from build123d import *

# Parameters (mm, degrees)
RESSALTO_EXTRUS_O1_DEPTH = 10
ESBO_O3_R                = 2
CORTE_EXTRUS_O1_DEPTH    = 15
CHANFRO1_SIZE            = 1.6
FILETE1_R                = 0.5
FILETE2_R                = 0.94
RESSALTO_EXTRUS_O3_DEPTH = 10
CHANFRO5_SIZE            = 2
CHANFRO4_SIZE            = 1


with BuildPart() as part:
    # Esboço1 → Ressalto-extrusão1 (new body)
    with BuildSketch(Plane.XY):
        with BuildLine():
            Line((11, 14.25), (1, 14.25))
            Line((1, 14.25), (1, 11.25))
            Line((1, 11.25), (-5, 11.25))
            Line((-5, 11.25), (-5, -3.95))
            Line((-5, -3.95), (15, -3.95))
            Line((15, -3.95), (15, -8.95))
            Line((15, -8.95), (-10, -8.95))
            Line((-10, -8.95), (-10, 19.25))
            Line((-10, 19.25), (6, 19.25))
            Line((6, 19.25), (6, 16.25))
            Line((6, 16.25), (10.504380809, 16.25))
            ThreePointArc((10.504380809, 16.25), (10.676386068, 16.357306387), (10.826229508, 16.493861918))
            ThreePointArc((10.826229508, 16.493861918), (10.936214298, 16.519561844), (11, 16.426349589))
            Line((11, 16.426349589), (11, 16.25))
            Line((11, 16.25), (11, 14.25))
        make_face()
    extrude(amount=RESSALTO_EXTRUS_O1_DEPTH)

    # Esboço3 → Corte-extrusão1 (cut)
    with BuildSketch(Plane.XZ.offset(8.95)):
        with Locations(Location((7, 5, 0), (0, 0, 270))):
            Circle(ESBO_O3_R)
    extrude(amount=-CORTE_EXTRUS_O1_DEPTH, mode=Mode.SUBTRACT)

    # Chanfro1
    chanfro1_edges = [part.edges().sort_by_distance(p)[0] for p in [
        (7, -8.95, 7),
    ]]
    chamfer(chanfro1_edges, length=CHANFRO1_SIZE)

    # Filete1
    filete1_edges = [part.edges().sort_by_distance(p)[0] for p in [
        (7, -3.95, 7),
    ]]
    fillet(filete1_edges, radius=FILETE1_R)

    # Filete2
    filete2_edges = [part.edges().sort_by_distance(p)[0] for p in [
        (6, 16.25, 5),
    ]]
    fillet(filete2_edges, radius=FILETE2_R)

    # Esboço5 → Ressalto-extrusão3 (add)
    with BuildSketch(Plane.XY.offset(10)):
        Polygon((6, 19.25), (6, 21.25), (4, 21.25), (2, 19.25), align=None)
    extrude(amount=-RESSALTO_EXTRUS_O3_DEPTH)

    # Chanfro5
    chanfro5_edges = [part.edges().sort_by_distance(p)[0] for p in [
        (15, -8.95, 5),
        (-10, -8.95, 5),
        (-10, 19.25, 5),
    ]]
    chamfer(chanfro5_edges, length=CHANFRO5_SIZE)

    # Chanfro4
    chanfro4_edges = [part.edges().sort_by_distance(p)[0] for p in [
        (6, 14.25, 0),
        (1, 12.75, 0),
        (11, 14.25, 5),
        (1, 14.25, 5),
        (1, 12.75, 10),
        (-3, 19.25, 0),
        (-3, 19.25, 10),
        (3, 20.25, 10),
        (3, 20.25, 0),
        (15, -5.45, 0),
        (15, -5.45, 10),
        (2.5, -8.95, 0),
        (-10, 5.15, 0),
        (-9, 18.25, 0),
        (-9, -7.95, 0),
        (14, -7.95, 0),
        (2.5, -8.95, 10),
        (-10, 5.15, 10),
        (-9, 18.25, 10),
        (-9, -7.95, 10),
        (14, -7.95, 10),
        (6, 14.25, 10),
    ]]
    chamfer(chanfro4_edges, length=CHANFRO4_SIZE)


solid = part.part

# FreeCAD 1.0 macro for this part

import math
import FreeCAD as App
import Part
import Sketcher


def edges_at(feature, points):
    """Names of the edges that pass closest to the given points."""
    edges = feature.Shape.Edges
    near = lambda p: min(range(len(edges)), key=lambda i: edges[i].distToShape(Part.Vertex(*p))[0])
    return sorted({f"Edge{near(p) + 1}" for p in points})

doc = App.newDocument("Part")
body = doc.addObject("PartDesign::Body", "Body")

# Sketch on XY plane
sketch1 = body.newObject("Sketcher::SketchObject", "Sketch")
sketch1.AttachmentSupport = (doc.getObject("XY_Plane"), [""])
sketch1.MapMode = "FlatFace"
sketch1.addGeometry(Part.LineSegment(App.Vector(1, 14.25, 0), App.Vector(11, 14.25, 0)), False)
sketch1.addGeometry(Part.LineSegment(App.Vector(11, 14.25, 0), App.Vector(11, 16.43, 0)), False)
sketch1.addGeometry(Part.ArcOfCircle(Part.Circle(App.Vector(10.9, 16.43, 0), App.Vector(0, 0, 1), 0.1), math.radians(0), math.radians(138)), False)
sketch1.addGeometry(Part.ArcOfCircle(Part.Circle(App.Vector(10, 17.25, 0), App.Vector(0, 0, 1), 1.12), math.radians(-63), math.radians(-42)), False)
sketch1.addGeometry(Part.LineSegment(App.Vector(10.5, 16.25, 0), App.Vector(6, 16.25, 0)), False)
sketch1.addGeometry(Part.LineSegment(App.Vector(6, 16.25, 0), App.Vector(6, 19.25, 0)), False)
sketch1.addGeometry(Part.LineSegment(App.Vector(6, 19.25, 0), App.Vector(-10, 19.25, 0)), False)
sketch1.addGeometry(Part.LineSegment(App.Vector(-10, 19.25, 0), App.Vector(-10, -8.95, 0)), False)
sketch1.addGeometry(Part.LineSegment(App.Vector(-10, -8.95, 0), App.Vector(15, -8.95, 0)), False)
sketch1.addGeometry(Part.LineSegment(App.Vector(15, -8.95, 0), App.Vector(15, -3.95, 0)), False)
sketch1.addGeometry(Part.LineSegment(App.Vector(15, -3.95, 0), App.Vector(-5, -3.95, 0)), False)
sketch1.addGeometry(Part.LineSegment(App.Vector(-5, -3.95, 0), App.Vector(-5, 11.25, 0)), False)
sketch1.addGeometry(Part.LineSegment(App.Vector(-5, 11.25, 0), App.Vector(1, 11.25, 0)), False)
sketch1.addGeometry(Part.LineSegment(App.Vector(1, 11.25, 0), App.Vector(1, 14.25, 0)), False)
sketch1.addConstraint(Sketcher.Constraint("Coincident", 0, 2, 1, 1))
sketch1.addConstraint(Sketcher.Constraint("Tangent", 1, 2, 2, 1))
sketch1.addConstraint(Sketcher.Constraint("Tangent", 2, 2, 3, 2))
sketch1.addConstraint(Sketcher.Constraint("Coincident", 3, 1, 4, 1))
sketch1.addConstraint(Sketcher.Constraint("Coincident", 4, 2, 5, 1))
sketch1.addConstraint(Sketcher.Constraint("Coincident", 5, 2, 6, 1))
sketch1.addConstraint(Sketcher.Constraint("Coincident", 6, 2, 7, 1))
sketch1.addConstraint(Sketcher.Constraint("Coincident", 7, 2, 8, 1))
sketch1.addConstraint(Sketcher.Constraint("Coincident", 8, 2, 9, 1))
sketch1.addConstraint(Sketcher.Constraint("Coincident", 9, 2, 10, 1))
sketch1.addConstraint(Sketcher.Constraint("Coincident", 10, 2, 11, 1))
sketch1.addConstraint(Sketcher.Constraint("Coincident", 11, 2, 12, 1))
sketch1.addConstraint(Sketcher.Constraint("Coincident", 12, 2, 13, 1))
sketch1.addConstraint(Sketcher.Constraint("Coincident", 13, 2, 0, 1))
sketch1.addConstraint(Sketcher.Constraint("Horizontal", 0))
sketch1.addConstraint(Sketcher.Constraint("Vertical", 1))
sketch1.addConstraint(Sketcher.Constraint("Horizontal", 4))
sketch1.addConstraint(Sketcher.Constraint("Vertical", 5))
sketch1.addConstraint(Sketcher.Constraint("Horizontal", 6))
sketch1.addConstraint(Sketcher.Constraint("Vertical", 7))
sketch1.addConstraint(Sketcher.Constraint("Horizontal", 8))
sketch1.addConstraint(Sketcher.Constraint("Vertical", 9))
sketch1.addConstraint(Sketcher.Constraint("Horizontal", 10))
sketch1.addConstraint(Sketcher.Constraint("Vertical", 11))
sketch1.addConstraint(Sketcher.Constraint("Horizontal", 12))
sketch1.addConstraint(Sketcher.Constraint("Vertical", 13))
sketch1.addConstraint(Sketcher.Constraint("Equal", 5, 13))
sketch1.addConstraint(Sketcher.Constraint("Radius", 2, 0.1))
sketch1.addConstraint(Sketcher.Constraint("DistanceX", 0, 1, 0, 2, 10.0))
sketch1.addConstraint(Sketcher.Constraint("DistanceX", 6, 2, 6, 1, 16.0))
sketch1.addConstraint(Sketcher.Constraint("DistanceX", 8, 1, 8, 2, 25.0))
sketch1.addConstraint(Sketcher.Constraint("DistanceX", 10, 2, 10, 1, 20.0))
sketch1.addConstraint(Sketcher.Constraint("DistanceX", 12, 1, 12, 2, 6.0))
sketch1.addConstraint(Sketcher.Constraint("DistanceY", 5, 1, 5, 2, 3.0))
sketch1.addConstraint(Sketcher.Constraint("DistanceY", 9, 1, 9, 2, 5.0))
sketch1.addConstraint(Sketcher.Constraint("Radius", 3, 1.12))
sketch1.addConstraint(Sketcher.Constraint("DistanceY", 7, 2, 7, 1, 28.2))
sketch1.addConstraint(Sketcher.Constraint("DistanceY", 11, 1, 11, 2, 15.2))
sketch1.addConstraint(Sketcher.Constraint("DistanceX", -1, 1, 3, 3, 10.0))
sketch1.addConstraint(Sketcher.Constraint("DistanceX", -1, 1, 0, 2, 11.0))
sketch1.addConstraint(Sketcher.Constraint("DistanceY", 0, 2, 3, 3, 3.0))
sketch1.addConstraint(Sketcher.Constraint("DistanceY", -1, 1, 3, 3, 17.25))
pad1 = body.newObject("PartDesign::Pad", "Pad")
pad1.Profile = sketch1
pad1.Length = 10

# Sketch on XZ plane
sketch2 = body.newObject("Sketcher::SketchObject", "Sketch001")
sketch2.AttachmentSupport = (doc.getObject("XZ_Plane"), [""])
sketch2.MapMode = "FlatFace"
sketch2.AttachmentOffset = App.Placement(App.Vector(0, 0, 8.95), App.Rotation())
sketch2.addGeometry(Part.Circle(App.Vector(7, 5, 0), App.Vector(0, 0, 1), 2), False)
sketch2.addConstraint(Sketcher.Constraint("Diameter", 0, 4.0))
sketch2.addConstraint(Sketcher.Constraint("DistanceX", -1, 1, 0, 3, 7.0))
sketch2.addConstraint(Sketcher.Constraint("DistanceY", -1, 1, 0, 3, 5.0))
pocket1 = body.newObject("PartDesign::Pocket", "Pocket")
pocket1.Profile = sketch2
pocket1.Length = 15
doc.recompute()

chamfer = body.newObject("PartDesign::Chamfer", "Chamfer")
chamfer.Base = (pocket1, edges_at(pocket1, [(7, -8.95, 7)]))
chamfer.Size = 1.6
doc.recompute()

fillet = body.newObject("PartDesign::Fillet", "Fillet")
fillet.Base = (chamfer, edges_at(chamfer, [(7, -3.95, 7)]))
fillet.Radius = 0.5
doc.recompute()

fillet2 = body.newObject("PartDesign::Fillet", "Fillet001")
fillet2.Base = (fillet, edges_at(fillet, [(6, 16.25, 5)]))
fillet2.Radius = 0.94

# Sketch on XY plane
sketch3 = body.newObject("Sketcher::SketchObject", "Sketch002")
sketch3.AttachmentSupport = (doc.getObject("XY_Plane"), [""])
sketch3.MapMode = "FlatFace"
sketch3.AttachmentOffset = App.Placement(App.Vector(0, 0, 10), App.Rotation())
sketch3.addGeometry(Part.LineSegment(App.Vector(6, 19.2, 0), App.Vector(6, 21.2, 0)), False)
sketch3.addGeometry(Part.LineSegment(App.Vector(6, 21.2, 0), App.Vector(4, 21.2, 0)), False)
sketch3.addGeometry(Part.LineSegment(App.Vector(4, 21.2, 0), App.Vector(2, 19.2, 0)), False)
sketch3.addGeometry(Part.LineSegment(App.Vector(2, 19.2, 0), App.Vector(6, 19.2, 0)), False)
sketch3.addConstraint(Sketcher.Constraint("Coincident", 0, 2, 1, 1))
sketch3.addConstraint(Sketcher.Constraint("Coincident", 1, 2, 2, 1))
sketch3.addConstraint(Sketcher.Constraint("Coincident", 2, 2, 3, 1))
sketch3.addConstraint(Sketcher.Constraint("Coincident", 3, 2, 0, 1))
sketch3.addConstraint(Sketcher.Constraint("Vertical", 0))
sketch3.addConstraint(Sketcher.Constraint("Horizontal", 1))
sketch3.addConstraint(Sketcher.Constraint("Horizontal", 3))
sketch3.addConstraint(Sketcher.Constraint("Equal", 1, 0))
sketch3.addConstraint(Sketcher.Constraint("DistanceX", 1, 2, 1, 1, 2.0))
sketch3.addConstraint(Sketcher.Constraint("DistanceX", 3, 1, 3, 2, 4.0))
sketch3.addConstraint(Sketcher.Constraint("DistanceX", -1, 1, 0, 2, 6.0))
sketch3.addConstraint(Sketcher.Constraint("DistanceY", -1, 1, 0, 2, 21.25))
pad2 = body.newObject("PartDesign::Pad", "Pad001")
pad2.Profile = sketch3
pad2.Length = 10
pad2.Reversed = True
doc.recompute()

chamfer2 = body.newObject("PartDesign::Chamfer", "Chamfer001")
chamfer2.Base = (pad2, edges_at(pad2, [(15, -8.95, 5), (-10, -8.95, 5), (-10, 19.25, 5)]))
chamfer2.Size = 2
doc.recompute()

chamfer3 = body.newObject("PartDesign::Chamfer", "Chamfer002")
chamfer3.Base = (chamfer2, edges_at(chamfer2, [
    (6, 14.25, 0),
    (1, 12.75, 0),
    (11, 14.25, 5),
    (1, 14.25, 5),
    (1, 12.75, 10),
    (-3, 19.25, 0),
    (-3, 19.25, 10),
    (3, 20.25, 10),
    (3, 20.25, 0),
    (15, -5.45, 0),
    (15, -5.45, 10),
    (2.5, -8.95, 0),
    (-10, 5.15, 0),
    (-9, 18.25, 0),
    (-9, -7.95, 0),
    (14, -7.95, 0),
    (2.5, -8.95, 10),
    (-10, 5.15, 10),
    (-9, 18.25, 10),
    (-9, -7.95, 10),
    (14, -7.95, 10),
    (6, 14.25, 10),
]))
chamfer3.Size = 1

doc.recompute()
